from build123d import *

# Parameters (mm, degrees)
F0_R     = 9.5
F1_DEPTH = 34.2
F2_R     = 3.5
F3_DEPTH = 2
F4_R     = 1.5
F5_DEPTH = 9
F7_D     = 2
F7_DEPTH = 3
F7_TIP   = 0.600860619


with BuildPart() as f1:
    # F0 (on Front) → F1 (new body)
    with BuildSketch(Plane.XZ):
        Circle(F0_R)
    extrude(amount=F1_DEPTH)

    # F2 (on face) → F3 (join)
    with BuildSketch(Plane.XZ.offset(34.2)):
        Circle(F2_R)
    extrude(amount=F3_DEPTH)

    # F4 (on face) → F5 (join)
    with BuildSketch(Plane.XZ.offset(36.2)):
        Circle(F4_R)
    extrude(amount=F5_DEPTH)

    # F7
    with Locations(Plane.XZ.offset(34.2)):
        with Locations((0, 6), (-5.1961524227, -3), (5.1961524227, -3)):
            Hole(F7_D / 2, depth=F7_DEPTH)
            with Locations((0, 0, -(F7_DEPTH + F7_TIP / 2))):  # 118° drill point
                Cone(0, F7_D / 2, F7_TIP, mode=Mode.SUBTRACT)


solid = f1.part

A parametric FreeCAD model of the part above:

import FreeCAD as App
import Part
import Sketcher

V = App.Vector

doc = App.newDocument("Part")
body = doc.addObject("PartDesign::Body", "Body")

sketch1 = body.newObject("Sketcher::SketchObject", "Sketch")
sketch1.AttachmentSupport = (doc.getObject("XZ_Plane"), [""])
sketch1.MapMode = "FlatFace"
sketch1.addGeometry(Part.Circle(V(0, 0, 0), V(0, 0, 1), 9.5), False)
sketch1.addConstraint(Sketcher.Constraint("Coincident", 0, 3, -1, 1))
sketch1.addConstraint(Sketcher.Constraint("Diameter", 0, 19.0))
pad1 = body.newObject("PartDesign::Pad", "Pad")
pad1.Profile = sketch1
pad1.Length = 34.2

sketch2 = body.newObject("Sketcher::SketchObject", "Sketch001")
sketch2.AttachmentSupport = (doc.getObject("XZ_Plane"), [""])
sketch2.MapMode = "FlatFace"
sketch2.AttachmentOffset = App.Placement(V(0, 0, 34.2), App.Rotation())
sketch2.addGeometry(Part.Circle(V(0, 0, 0), V(0, 0, 1), 3.5), False)
sketch2.addConstraint(Sketcher.Constraint("Coincident", 0, 3, -1, 1))
sketch2.addConstraint(Sketcher.Constraint("Diameter", 0, 7.0))
pad2 = body.newObject("PartDesign::Pad", "Pad001")
pad2.Profile = sketch2
pad2.Length = 2

sketch3 = body.newObject("Sketcher::SketchObject", "Sketch002")
sketch3.AttachmentSupport = (doc.getObject("XZ_Plane"), [""])
sketch3.MapMode = "FlatFace"
sketch3.AttachmentOffset = App.Placement(V(0, 0, 36.2), App.Rotation())
sketch3.addGeometry(Part.Circle(V(0, 0, 0), V(0, 0, 1), 1.5), False)
sketch3.addConstraint(Sketcher.Constraint("Coincident", 0, 3, -1, 1))
sketch3.addConstraint(Sketcher.Constraint("Diameter", 0, 3.0))
pad3 = body.newObject("PartDesign::Pad", "Pad002")
pad3.Profile = sketch3
pad3.Length = 9

sketch4 = body.newObject("Sketcher::SketchObject", "Sketch003")
sketch4.AttachmentSupport = (doc.getObject("XZ_Plane"), [""])
sketch4.MapMode = "FlatFace"
sketch4.AttachmentOffset = App.Placement(V(0, 0, 34.2), App.Rotation())
sketch4.addGeometry(Part.Circle(V(0, 6, 0), V(0, 0, 1), 1), False)
sketch4.addGeometry(Part.Circle(V(-5.196152, -3, 0), V(0, 0, 1), 1), False)
sketch4.addGeometry(Part.Circle(V(5.196152, -3, 0), V(0, 0, 1), 1), False)
sketch4.addConstraint(Sketcher.Constraint("Equal", 0, 1))
sketch4.addConstraint(Sketcher.Constraint("Equal", 1, 2))
sketch4.addConstraint(Sketcher.Constraint("Symmetric", 1, 3, 2, 3, -2))
sketch4.addConstraint(Sketcher.Constraint("PointOnObject", 0, 3, -2))
sketch4.addConstraint(Sketcher.Constraint("Diameter", 0, 2.0))
sketch4.addConstraint(Sketcher.Constraint("DistanceY", -1, 1, 0, 3, 6.0))
sketch4.addConstraint(Sketcher.Constraint("DistanceY", 1, 3, -1, 1, 3.0))
sketch4.addConstraint(Sketcher.Constraint("DistanceX", 1, 3, -1, 1, 5.196152))
doc.recompute()
hole = body.newObject("PartDesign::Hole", "Hole")
hole.Profile = sketch4
hole.ThreadType = "None"
hole.Diameter = 2
hole.DepthType = "Dimension"
hole.Depth = 3
hole.DrillPoint = "Angled"
hole.DrillPointAngle = 118

doc.recompute()
